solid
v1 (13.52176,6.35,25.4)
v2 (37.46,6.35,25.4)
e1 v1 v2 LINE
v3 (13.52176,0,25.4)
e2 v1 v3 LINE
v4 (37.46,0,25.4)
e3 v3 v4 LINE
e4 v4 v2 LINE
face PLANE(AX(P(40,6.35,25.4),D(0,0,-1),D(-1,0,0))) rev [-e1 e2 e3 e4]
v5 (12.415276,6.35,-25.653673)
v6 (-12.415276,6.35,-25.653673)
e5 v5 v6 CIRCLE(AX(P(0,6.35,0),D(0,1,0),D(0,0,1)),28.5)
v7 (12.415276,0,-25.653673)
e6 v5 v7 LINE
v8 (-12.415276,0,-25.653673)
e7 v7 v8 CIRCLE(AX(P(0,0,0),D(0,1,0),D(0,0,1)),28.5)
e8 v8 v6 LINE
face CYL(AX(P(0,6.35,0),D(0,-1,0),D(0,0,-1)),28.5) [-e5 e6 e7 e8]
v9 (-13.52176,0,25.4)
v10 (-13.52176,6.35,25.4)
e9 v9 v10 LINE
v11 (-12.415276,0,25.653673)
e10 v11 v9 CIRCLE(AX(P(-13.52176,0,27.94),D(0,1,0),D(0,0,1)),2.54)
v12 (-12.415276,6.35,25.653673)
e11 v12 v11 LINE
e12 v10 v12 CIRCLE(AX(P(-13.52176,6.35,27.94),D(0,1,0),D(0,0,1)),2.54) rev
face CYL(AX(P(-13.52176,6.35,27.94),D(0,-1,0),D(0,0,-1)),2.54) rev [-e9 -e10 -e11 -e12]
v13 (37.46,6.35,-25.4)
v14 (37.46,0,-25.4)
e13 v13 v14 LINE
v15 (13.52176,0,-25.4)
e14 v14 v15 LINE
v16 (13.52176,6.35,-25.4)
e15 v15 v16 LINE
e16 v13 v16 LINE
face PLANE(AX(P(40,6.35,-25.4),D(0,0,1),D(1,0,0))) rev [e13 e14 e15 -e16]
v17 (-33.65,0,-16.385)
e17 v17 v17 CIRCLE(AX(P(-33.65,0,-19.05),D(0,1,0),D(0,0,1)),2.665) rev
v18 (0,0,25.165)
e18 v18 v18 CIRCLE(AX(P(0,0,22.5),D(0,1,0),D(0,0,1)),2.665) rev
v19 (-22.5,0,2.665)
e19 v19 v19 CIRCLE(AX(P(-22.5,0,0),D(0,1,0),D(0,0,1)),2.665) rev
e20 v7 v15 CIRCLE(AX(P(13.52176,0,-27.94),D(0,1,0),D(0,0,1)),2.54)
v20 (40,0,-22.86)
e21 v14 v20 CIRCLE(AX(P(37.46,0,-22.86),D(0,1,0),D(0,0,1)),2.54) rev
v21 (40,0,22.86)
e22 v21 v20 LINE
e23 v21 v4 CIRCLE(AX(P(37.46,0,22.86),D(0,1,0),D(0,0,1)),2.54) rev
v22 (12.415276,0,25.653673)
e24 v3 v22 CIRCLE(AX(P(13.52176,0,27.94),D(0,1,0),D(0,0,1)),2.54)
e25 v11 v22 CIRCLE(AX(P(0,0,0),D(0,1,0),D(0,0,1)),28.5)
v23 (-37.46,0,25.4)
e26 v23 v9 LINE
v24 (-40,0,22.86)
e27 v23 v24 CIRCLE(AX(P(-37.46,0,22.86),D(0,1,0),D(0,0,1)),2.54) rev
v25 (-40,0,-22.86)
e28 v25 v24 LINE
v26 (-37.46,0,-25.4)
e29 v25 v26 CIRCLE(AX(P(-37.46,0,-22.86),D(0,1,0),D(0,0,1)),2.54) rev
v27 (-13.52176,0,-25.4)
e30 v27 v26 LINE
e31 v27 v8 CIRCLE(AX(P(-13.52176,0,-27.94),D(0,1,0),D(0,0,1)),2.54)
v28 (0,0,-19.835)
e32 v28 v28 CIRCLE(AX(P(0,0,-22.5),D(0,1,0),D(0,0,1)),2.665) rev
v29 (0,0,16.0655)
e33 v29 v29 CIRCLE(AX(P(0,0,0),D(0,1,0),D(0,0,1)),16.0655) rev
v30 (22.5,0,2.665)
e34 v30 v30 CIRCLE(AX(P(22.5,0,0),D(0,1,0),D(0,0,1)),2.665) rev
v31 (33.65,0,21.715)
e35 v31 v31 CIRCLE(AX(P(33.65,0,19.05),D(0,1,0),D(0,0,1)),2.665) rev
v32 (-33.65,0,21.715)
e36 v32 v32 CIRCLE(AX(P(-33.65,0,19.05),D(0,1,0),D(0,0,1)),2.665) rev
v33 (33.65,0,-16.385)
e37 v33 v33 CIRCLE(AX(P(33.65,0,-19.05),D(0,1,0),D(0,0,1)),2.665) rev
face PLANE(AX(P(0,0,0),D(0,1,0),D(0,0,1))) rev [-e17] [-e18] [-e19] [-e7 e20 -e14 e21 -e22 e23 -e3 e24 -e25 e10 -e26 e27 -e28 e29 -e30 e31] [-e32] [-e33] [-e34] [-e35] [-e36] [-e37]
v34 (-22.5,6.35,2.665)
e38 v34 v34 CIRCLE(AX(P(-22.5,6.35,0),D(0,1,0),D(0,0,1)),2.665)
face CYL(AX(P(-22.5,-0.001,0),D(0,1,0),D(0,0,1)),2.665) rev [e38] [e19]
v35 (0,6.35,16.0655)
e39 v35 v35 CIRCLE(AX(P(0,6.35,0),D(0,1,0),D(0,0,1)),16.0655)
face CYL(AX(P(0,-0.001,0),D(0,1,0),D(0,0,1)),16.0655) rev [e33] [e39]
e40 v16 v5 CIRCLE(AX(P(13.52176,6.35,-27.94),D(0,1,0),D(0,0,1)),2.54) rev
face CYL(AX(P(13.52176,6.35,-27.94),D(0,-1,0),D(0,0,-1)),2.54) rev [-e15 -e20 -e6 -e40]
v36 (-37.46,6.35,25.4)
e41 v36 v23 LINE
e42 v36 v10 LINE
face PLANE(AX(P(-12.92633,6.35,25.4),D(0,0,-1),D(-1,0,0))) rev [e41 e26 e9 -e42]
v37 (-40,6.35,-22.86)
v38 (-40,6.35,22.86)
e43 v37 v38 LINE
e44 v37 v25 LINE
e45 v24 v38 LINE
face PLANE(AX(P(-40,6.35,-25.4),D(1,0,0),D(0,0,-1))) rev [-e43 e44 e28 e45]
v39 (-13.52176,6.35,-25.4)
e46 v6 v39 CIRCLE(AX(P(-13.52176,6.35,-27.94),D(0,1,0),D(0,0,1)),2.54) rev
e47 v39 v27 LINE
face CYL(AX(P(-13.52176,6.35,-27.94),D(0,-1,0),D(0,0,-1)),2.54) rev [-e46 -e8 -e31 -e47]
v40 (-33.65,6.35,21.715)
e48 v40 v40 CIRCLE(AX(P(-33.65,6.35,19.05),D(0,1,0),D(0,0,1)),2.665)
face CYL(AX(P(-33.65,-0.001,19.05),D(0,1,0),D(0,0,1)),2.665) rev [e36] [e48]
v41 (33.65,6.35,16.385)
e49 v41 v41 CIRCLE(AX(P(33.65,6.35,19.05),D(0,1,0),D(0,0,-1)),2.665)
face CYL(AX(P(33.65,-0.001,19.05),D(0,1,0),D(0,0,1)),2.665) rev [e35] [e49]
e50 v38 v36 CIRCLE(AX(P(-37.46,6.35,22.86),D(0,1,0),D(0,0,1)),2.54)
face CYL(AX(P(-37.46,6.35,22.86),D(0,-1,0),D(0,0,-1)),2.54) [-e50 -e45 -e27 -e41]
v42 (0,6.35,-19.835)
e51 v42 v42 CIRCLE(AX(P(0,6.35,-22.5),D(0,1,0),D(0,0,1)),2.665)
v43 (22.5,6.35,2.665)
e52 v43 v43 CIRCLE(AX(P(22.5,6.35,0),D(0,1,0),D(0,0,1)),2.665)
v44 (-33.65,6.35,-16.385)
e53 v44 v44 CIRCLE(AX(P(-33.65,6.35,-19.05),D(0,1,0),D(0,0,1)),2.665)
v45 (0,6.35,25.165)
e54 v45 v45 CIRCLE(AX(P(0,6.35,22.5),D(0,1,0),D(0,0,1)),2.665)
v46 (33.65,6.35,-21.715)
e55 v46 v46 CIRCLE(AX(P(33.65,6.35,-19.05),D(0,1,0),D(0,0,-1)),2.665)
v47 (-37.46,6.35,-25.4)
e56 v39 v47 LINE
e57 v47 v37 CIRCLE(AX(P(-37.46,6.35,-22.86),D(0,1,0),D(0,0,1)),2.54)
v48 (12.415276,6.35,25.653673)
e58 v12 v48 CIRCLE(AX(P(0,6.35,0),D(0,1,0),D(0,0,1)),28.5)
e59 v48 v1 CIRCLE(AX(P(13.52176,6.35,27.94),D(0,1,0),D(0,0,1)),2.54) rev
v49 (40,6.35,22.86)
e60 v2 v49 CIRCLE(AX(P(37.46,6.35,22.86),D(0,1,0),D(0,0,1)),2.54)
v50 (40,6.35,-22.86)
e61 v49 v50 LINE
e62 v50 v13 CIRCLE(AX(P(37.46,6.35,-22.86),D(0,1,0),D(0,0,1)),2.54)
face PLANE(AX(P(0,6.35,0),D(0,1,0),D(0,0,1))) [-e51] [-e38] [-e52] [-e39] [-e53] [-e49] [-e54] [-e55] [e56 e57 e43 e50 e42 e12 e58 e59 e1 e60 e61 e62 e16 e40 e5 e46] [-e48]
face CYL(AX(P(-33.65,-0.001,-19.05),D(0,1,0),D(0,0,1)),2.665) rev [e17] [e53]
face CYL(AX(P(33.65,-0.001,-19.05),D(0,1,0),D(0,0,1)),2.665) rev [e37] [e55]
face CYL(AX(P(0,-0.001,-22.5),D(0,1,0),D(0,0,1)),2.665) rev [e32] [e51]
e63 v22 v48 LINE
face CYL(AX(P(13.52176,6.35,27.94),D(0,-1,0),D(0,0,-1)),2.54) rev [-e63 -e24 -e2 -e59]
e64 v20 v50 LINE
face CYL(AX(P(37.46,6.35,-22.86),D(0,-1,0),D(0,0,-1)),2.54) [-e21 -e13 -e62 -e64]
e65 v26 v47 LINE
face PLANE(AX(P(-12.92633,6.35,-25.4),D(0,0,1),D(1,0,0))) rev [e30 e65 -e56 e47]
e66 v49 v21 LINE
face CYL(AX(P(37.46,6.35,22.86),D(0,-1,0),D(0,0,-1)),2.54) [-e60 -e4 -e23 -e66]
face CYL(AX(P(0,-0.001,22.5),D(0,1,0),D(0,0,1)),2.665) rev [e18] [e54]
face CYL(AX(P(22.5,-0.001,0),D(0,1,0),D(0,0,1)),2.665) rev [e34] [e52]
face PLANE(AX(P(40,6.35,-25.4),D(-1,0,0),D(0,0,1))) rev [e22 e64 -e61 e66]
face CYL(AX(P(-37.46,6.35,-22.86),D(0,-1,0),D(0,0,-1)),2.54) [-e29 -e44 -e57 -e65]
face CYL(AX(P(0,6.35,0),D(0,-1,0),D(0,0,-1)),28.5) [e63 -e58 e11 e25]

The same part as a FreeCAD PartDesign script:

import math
import FreeCAD as App
import Part
import Sketcher
from FreeCAD import Vector
Q = App.Units.Quantity


def edges_at(feature, points):
    """Names of the edges that pass closest to the given points."""
    edges = feature.Shape.Edges
    near = lambda p: min(range(len(edges)), key=lambda i: edges[i].distToShape(Part.Vertex(*p))[0])
    return sorted({f"Edge{near(p) + 1}" for p in points})

doc = App.newDocument("Part")
params = doc.addObject("Spreadsheet::Sheet", "Params")
for row, (alias, value) in enumerate([
    ("sketch1_height", "2 in"),
    ("pad1_length", "0.25 in"),
    ("sketch2_diameter", "1.265 in"),
    ("fillet_radius", "0.1 in"),
], start=1):
    params.set(f"A{row}", alias)
    params.set(f"B{row}", "=" + value)
    params.setAlias(f"B{row}", alias)

body = doc.addObject("PartDesign::Body", "Body")

sketch1 = body.newObject("Sketcher::SketchObject", "Sketch")
sketch1.AttachmentSupport = (doc.getObject("XZ_Plane"), [""])
sketch1.MapMode = "FlatFace"
sketch1.addGeometry(Part.LineSegment(Vector(-13, -25, 0), Vector(-40, -25, 0)), False)
sketch1.addGeometry(Part.LineSegment(Vector(-40, -25, 0), Vector(-40, 25, 0)), False)
sketch1.addGeometry(Part.LineSegment(Vector(-40, 25, 0), Vector(-13, 25, 0)), False)
sketch1.addGeometry(Part.ArcOfCircle(Part.Circle(Vector(0, 0, 0), Vector(0, 0, 1), 29), math.radians(63), math.radians(117)), False)
sketch1.addGeometry(Part.LineSegment(Vector(13, 25, 0), Vector(40, 25, 0)), False)
sketch1.addGeometry(Part.LineSegment(Vector(40, 25, 0), Vector(40, -25, 0)), False)
sketch1.addGeometry(Part.LineSegment(Vector(40, -25, 0), Vector(13, -25, 0)), False)
sketch1.addGeometry(Part.ArcOfCircle(Part.Circle(Vector(0, 0, 0), Vector(0, 0, 1), 29), math.radians(-117), math.radians(-63)), False)
sketch1.addConstraint(Sketcher.Constraint("Coincident", 0, 2, 1, 1))
sketch1.addConstraint(Sketcher.Constraint("Coincident", 1, 2, 2, 1))
sketch1.addConstraint(Sketcher.Constraint("Coincident", 2, 2, 3, 2))
sketch1.addConstraint(Sketcher.Constraint("Coincident", 3, 1, 4, 1))
sketch1.addConstraint(Sketcher.Constraint("Coincident", 4, 2, 5, 1))
sketch1.addConstraint(Sketcher.Constraint("Coincident", 5, 2, 6, 1))
sketch1.addConstraint(Sketcher.Constraint("Coincident", 6, 2, 7, 2))
sketch1.addConstraint(Sketcher.Constraint("Coincident", 7, 1, 0, 1))
sketch1.addConstraint(Sketcher.Constraint("Horizontal", 0))
sketch1.addConstraint(Sketcher.Constraint("Vertical", 1))
sketch1.addConstraint(Sketcher.Constraint("Horizontal", 2))
sketch1.addConstraint(Sketcher.Constraint("Horizontal", 4))
sketch1.addConstraint(Sketcher.Constraint("Vertical", 5))
sketch1.addConstraint(Sketcher.Constraint("Horizontal", 6))
sketch1.addConstraint(Sketcher.Constraint("Coincident", 3, 3, -1, 1))
sketch1.addConstraint(Sketcher.Constraint("Coincident", 7, 3, -1, 1))
sketch1.addConstraint(Sketcher.Constraint("Equal", 3, 7))
sketch1.addConstraint(Sketcher.Constraint("Symmetric", 0, 2, 4, 2, -1, 1))
sketch1.addConstraint(Sketcher.Constraint("Horizontal", 2, 2, 3, 1))
sketch1.addConstraint(Sketcher.Constraint("Horizontal", 0, 2, 5, 2))
sketch1.addConstraint(Sketcher.Constraint("DistanceY", 1, 1, 1, 2, Q("2 in")))
sketch1.addConstraint(Sketcher.Constraint("Radius", 3, Q("28.5 mm")))
sketch1.addConstraint(Sketcher.Constraint("DistanceX", 0, 2, 0, 1, Q("27.07367 mm")))
sketch1.setExpression("Constraints[20]", "Params.sketch1_height")
pad1 = body.newObject("PartDesign::Pad", "Pad")
pad1.Profile = sketch1
pad1.setExpression("Length", "Params.pad1_length")
pad1.Reversed = True

sketch2 = body.newObject("Sketcher::SketchObject", "Sketch001")
sketch2.AttachmentSupport = (doc.getObject("XZ_Plane"), [""])
sketch2.MapMode = "FlatFace"
sketch2.AttachmentOffset = App.Placement(Vector(0, 0, -0.25 * 25.4), App.Rotation())
sketch2.addGeometry(Part.Circle(Vector(0, 0, 0), Vector(0, 0, 1), 16), False)
sketch2.addConstraint(Sketcher.Constraint("Coincident", 0, 3, -1, 1))
sketch2.addConstraint(Sketcher.Constraint("Diameter", 0, Q("1.265 in")))
sketch2.setExpression("Constraints[1]", "Params.sketch2_diameter")
pocket1 = body.newObject("PartDesign::Pocket", "Pocket")
pocket1.Profile = sketch2
pocket1.Type = "UpToFirst"
pocket1.Reversed = True

sketch3 = body.newObject("Sketcher::SketchObject", "Sketch002")
sketch3.AttachmentSupport = (doc.getObject("XZ_Plane"), [""])
sketch3.MapMode = "FlatFace"
sketch3.AttachmentOffset = App.Placement(Vector(0, 0, -0.25 * 25.4), App.Rotation())
sketch3.addGeometry(Part.Circle(Vector(0, -22.5, 0), Vector(0, 0, 1), 2.7), False)
sketch3.addConstraint(Sketcher.Constraint("PointOnObject", 0, 3, -2))
sketch3.addConstraint(Sketcher.Constraint("Diameter", 0, Q("5.33 mm")))
sketch3.addConstraint(Sketcher.Constraint("DistanceY", 0, 3, -1, 1, Q("22.5 mm")))
pocket2 = body.newObject("PartDesign::Pocket", "Pocket001")
pocket2.Profile = sketch3
pocket2.Type = "UpToFirst"
pocket2.Reversed = True

sketch4 = body.newObject("Sketcher::SketchObject", "Sketch003")
sketch4.AttachmentSupport = (doc.getObject("XZ_Plane"), [""])
sketch4.MapMode = "FlatFace"
sketch4.AttachmentOffset = App.Placement(Vector(0, 0, -0.25 * 25.4), App.Rotation())
sketch4.addGeometry(Part.Circle(Vector(22.5, 0, 0), Vector(0, 0, 1), 2.7), False)
sketch4.addConstraint(Sketcher.Constraint("PointOnObject", 0, 3, -1))
sketch4.addConstraint(Sketcher.Constraint("Diameter", 0, Q("5.33 mm")))
sketch4.addConstraint(Sketcher.Constraint("DistanceX", -1, 1, 0, 3, Q("22.5 mm")))
pocket3 = body.newObject("PartDesign::Pocket", "Pocket002")
pocket3.Profile = sketch4
pocket3.Type = "UpToFirst"
pocket3.Reversed = True

sketch5 = body.newObject("Sketcher::SketchObject", "Sketch004")
sketch5.AttachmentSupport = (doc.getObject("XZ_Plane"), [""])
sketch5.MapMode = "FlatFace"
sketch5.AttachmentOffset = App.Placement(Vector(0, 0, -0.25 * 25.4), App.Rotation())
sketch5.addGeometry(Part.Circle(Vector(0, 22.5, 0), Vector(0, 0, 1), 2.7), False)
sketch5.addConstraint(Sketcher.Constraint("PointOnObject", 0, 3, -2))
sketch5.addConstraint(Sketcher.Constraint("Diameter", 0, Q("5.33 mm")))
sketch5.addConstraint(Sketcher.Constraint("DistanceY", -1, 1, 0, 3, Q("22.5 mm")))
pocket4 = body.newObject("PartDesign::Pocket", "Pocket003")
pocket4.Profile = sketch5
pocket4.Type = "UpToFirst"
pocket4.Reversed = True

sketch6 = body.newObject("Sketcher::SketchObject", "Sketch005")
sketch6.AttachmentSupport = (doc.getObject("XZ_Plane"), [""])
sketch6.MapMode = "FlatFace"
sketch6.AttachmentOffset = App.Placement(Vector(0, 0, -0.25 * 25.4), App.Rotation())
sketch6.addGeometry(Part.Circle(Vector(-22.5, 0, 0), Vector(0, 0, 1), 2.7), False)
sketch6.addConstraint(Sketcher.Constraint("PointOnObject", 0, 3, -1))
sketch6.addConstraint(Sketcher.Constraint("Diameter", 0, Q("5.33 mm")))
sketch6.addConstraint(Sketcher.Constraint("DistanceX", 0, 3, -1, 1, Q("22.5 mm")))
pocket5 = body.newObject("PartDesign::Pocket", "Pocket004")
pocket5.Profile = sketch6
pocket5.Type = "UpToFirst"
pocket5.Reversed = True

sketch7 = body.newObject("Sketcher::SketchObject", "Sketch006")
sketch7.AttachmentSupport = (doc.getObject("XZ_Plane"), [""])
sketch7.MapMode = "FlatFace"
sketch7.AttachmentOffset = App.Placement(Vector(0, 0, -0.25 * 25.4), App.Rotation())
sketch7.addGeometry(Part.Circle(Vector(-33.6, -19.1, 0), Vector(0, 0, 1), 2.7), False)
sketch7.addConstraint(Sketcher.Constraint("Diameter", 0, Q("5.33 mm")))
sketch7.addConstraint(Sketcher.Constraint("DistanceY", 0, 3, -1, 1, Q("0.75 in")))
sketch7.addConstraint(Sketcher.Constraint("DistanceX", 0, 3, -1, 1, Q("33.65 mm")))
pocket6 = body.newObject("PartDesign::Pocket", "Pocket005")
pocket6.Profile = sketch7
pocket6.Type = "UpToFirst"
pocket6.Reversed = True

sketch8 = body.newObject("Sketcher::SketchObject", "Sketch007")
sketch8.AttachmentSupport = (doc.getObject("XZ_Plane"), [""])
sketch8.MapMode = "FlatFace"
sketch8.AttachmentOffset = App.Placement(Vector(0, 0, -0.25 * 25.4), App.Rotation())
sketch8.addGeometry(Part.Circle(Vector(-33.6, 19.1, 0), Vector(0, 0, 1), 2.7), False)
sketch8.addConstraint(Sketcher.Constraint("Diameter", 0, Q("5.33 mm")))
sketch8.addConstraint(Sketcher.Constraint("DistanceY", -1, 1, 0, 3, Q("0.75 in")))
sketch8.addConstraint(Sketcher.Constraint("DistanceX", 0, 3, -1, 1, Q("33.65 mm")))
pocket7 = body.newObject("PartDesign::Pocket", "Pocket006")
pocket7.Profile = sketch8
pocket7.Type = "UpToFirst"
pocket7.Reversed = True

sketch9 = body.newObject("Sketcher::SketchObject", "Sketch008")
sketch9.AttachmentSupport = (doc.getObject("XZ_Plane"), [""])
sketch9.MapMode = "FlatFace"
sketch9.AttachmentOffset = App.Placement(Vector(0, 0, -0.25 * 25.4), App.Rotation())
sketch9.addGeometry(Part.Circle(Vector(33.6, -19.1, 0), Vector(0, 0, 1), 2.7), False)
sketch9.addConstraint(Sketcher.Constraint("Diameter", 0, Q("5.33 mm")))
sketch9.addConstraint(Sketcher.Constraint("DistanceY", 0, 3, -1, 1, Q("0.75 in")))
sketch9.addConstraint(Sketcher.Constraint("DistanceX", -1, 1, 0, 3, Q("33.65 mm")))
pocket8 = body.newObject("PartDesign::Pocket", "Pocket007")
pocket8.Profile = sketch9
pocket8.Type = "UpToFirst"
pocket8.Reversed = True

sketch10 = body.newObject("Sketcher::SketchObject", "Sketch009")
sketch10.AttachmentSupport = (doc.getObject("XZ_Plane"), [""])
sketch10.MapMode = "FlatFace"
sketch10.AttachmentOffset = App.Placement(Vector(0, 0, -0.25 * 25.4), App.Rotation())
sketch10.addGeometry(Part.Circle(Vector(33.6, 19.1, 0), Vector(0, 0, 1), 2.7), False)
sketch10.addConstraint(Sketcher.Constraint("Diameter", 0, Q("5.33 mm")))
sketch10.addConstraint(Sketcher.Constraint("DistanceY", -1, 1, 0, 3, Q("0.75 in")))
sketch10.addConstraint(Sketcher.Constraint("DistanceX", -1, 1, 0, 3, Q("33.65 mm")))
pocket9 = body.newObject("PartDesign::Pocket", "Pocket008")
pocket9.Profile = sketch10
pocket9.Type = "UpToFirst"
pocket9.Reversed = True
doc.recompute()

fillet = body.newObject("PartDesign::Fillet", "Fillet")
fillet.Base = (pocket9, edges_at(pocket9, [
    (12.926, 3.175, -25.4),
    (40, 3.175, -25.4),
    (40, 3.175, 25.4),
    (12.926, 3.175, 25.4),
    (-12.926, 3.175, 25.4),
    (-40, 3.175, 25.4),
    (-40, 3.175, -25.4),
    (-12.926, 3.175, -25.4),
]))
fillet.setExpression("Radius", "Params.fillet_radius")

doc.recompute()
